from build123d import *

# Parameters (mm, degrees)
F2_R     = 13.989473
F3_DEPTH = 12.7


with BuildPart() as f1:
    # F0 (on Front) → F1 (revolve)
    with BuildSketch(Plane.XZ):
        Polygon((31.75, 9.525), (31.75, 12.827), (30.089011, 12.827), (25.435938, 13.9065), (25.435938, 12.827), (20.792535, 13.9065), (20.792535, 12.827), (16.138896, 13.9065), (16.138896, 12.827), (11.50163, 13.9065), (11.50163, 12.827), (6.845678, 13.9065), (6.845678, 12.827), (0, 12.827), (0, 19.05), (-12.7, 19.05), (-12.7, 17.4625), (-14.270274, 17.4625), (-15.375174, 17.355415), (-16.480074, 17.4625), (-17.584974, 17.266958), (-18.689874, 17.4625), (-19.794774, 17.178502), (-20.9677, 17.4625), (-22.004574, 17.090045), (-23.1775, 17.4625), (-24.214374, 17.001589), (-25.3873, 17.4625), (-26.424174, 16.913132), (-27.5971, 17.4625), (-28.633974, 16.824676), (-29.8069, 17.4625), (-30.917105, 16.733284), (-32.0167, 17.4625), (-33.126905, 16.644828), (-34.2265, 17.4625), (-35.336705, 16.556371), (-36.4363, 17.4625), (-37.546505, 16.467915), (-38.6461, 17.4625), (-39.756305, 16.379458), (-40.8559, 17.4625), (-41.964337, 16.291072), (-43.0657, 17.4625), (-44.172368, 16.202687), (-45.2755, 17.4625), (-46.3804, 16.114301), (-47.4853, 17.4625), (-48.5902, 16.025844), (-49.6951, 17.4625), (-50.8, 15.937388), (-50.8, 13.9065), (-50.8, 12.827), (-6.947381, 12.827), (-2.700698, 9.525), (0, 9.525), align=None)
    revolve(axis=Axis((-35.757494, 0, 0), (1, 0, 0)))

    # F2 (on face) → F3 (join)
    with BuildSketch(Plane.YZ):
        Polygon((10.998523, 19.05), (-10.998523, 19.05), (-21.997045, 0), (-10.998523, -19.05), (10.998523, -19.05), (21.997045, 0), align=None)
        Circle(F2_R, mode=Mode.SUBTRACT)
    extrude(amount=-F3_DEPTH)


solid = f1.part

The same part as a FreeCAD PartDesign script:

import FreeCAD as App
import Part
import Sketcher
Q = App.Units.Quantity


def add_polygon(sketch, points):
    """Adds a closed chain of lines whose ends are joined by coincident constraints."""
    first, n = sketch.GeometryCount, len(points)
    for a, b in zip(points, points[1:] + points[:1]):
        sketch.addGeometry(Part.LineSegment(App.Vector(*a, 0), App.Vector(*b, 0)), False)
    for i in range(n):
        sketch.addConstraint(Sketcher.Constraint("Coincident", first + i, 2, first + (i + 1) % n, 1))

doc = App.newDocument("Part")
body = doc.addObject("PartDesign::Body", "Body")

# Sketch on XZ plane
sketch1 = body.newObject("Sketcher::SketchObject", "Sketch")
sketch1.AttachmentSupport = (doc.getObject("XZ_Plane"), [""])
sketch1.MapMode = "FlatFace"
add_polygon(sketch1, [(31.8, 9.5), (31.8, 12.8), (30.1, 12.8), (25.4, 13.9), (25.4, 12.8), (20.8, 13.9), (20.8, 12.8), (16.1, 13.9), (16.1, 12.8), (11.5, 13.9), (11.5, 12.8), (6.8, 13.9), (6.8, 12.8), (0, 12.8), (0, 19.1), (-12.7, 19.1), (-12.7, 17.5), (-14.3, 17.5), (-15.4, 17.4), (-16.5, 17.5), (-17.6, 17.3), (-18.7, 17.5), (-19.8, 17.2), (-21, 17.5), (-22, 17.1), (-23.2, 17.5), (-24.2, 17), (-25.4, 17.5), (-26.4, 16.9), (-27.6, 17.5), (-28.6, 16.8), (-29.8, 17.5), (-30.9, 16.7), (-32, 17.5), (-33.1, 16.6), (-34.2, 17.5), (-35.3, 16.6), (-36.4, 17.5), (-37.5, 16.5), (-38.6, 17.5), (-39.8, 16.4), (-40.9, 17.5), (-42, 16.3), (-43.1, 17.5), (-44.2, 16.2), (-45.3, 17.5), (-46.4, 16.1), (-47.5, 17.5), (-48.6, 16), (-49.7, 17.5), (-50.8, 15.9), (-50.8, 12.8), (-6.9, 12.8), (-2.7, 9.5)])  # lines 0-53
sketch1.addConstraint(Sketcher.Constraint("Vertical", 0))
sketch1.addConstraint(Sketcher.Constraint("Horizontal", 1))
sketch1.addConstraint(Sketcher.Constraint("Vertical", 3))
sketch1.addConstraint(Sketcher.Constraint("Vertical", 5))
sketch1.addConstraint(Sketcher.Constraint("Vertical", 7))
sketch1.addConstraint(Sketcher.Constraint("Vertical", 9))
sketch1.addConstraint(Sketcher.Constraint("Vertical", 11))
sketch1.addConstraint(Sketcher.Constraint("Horizontal", 12))
sketch1.addConstraint(Sketcher.Constraint("Vertical", 13))
sketch1.addConstraint(Sketcher.Constraint("Horizontal", 14))
sketch1.addConstraint(Sketcher.Constraint("Vertical", 15))
sketch1.addConstraint(Sketcher.Constraint("Horizontal", 16))
sketch1.addConstraint(Sketcher.Constraint("Vertical", 50))
sketch1.addConstraint(Sketcher.Constraint("Horizontal", 51))
sketch1.addConstraint(Sketcher.Constraint("Horizontal", 53))
sketch1.addConstraint(Sketcher.Constraint("PointOnObject", 12, 2, -2))
sketch1.addConstraint(Sketcher.Constraint("Horizontal", 1, 2, 3, 2))
sketch1.addConstraint(Sketcher.Constraint("Horizontal", 2, 2, 4, 2))
sketch1.addConstraint(Sketcher.Constraint("Horizontal", 3, 2, 5, 2))
sketch1.addConstraint(Sketcher.Constraint("Horizontal", 4, 2, 6, 2))
sketch1.addConstraint(Sketcher.Constraint("Horizontal", 5, 2, 7, 2))
sketch1.addConstraint(Sketcher.Constraint("Horizontal", 6, 2, 8, 2))
sketch1.addConstraint(Sketcher.Constraint("Horizontal", 7, 2, 9, 2))
sketch1.addConstraint(Sketcher.Constraint("Horizontal", 8, 2, 10, 2))
sketch1.addConstraint(Sketcher.Constraint("Horizontal", 9, 2, 11, 2))
sketch1.addConstraint(Sketcher.Constraint("Horizontal", 16, 2, 18, 2))
sketch1.addConstraint(Sketcher.Constraint("Horizontal", 18, 2, 20, 2))
sketch1.addConstraint(Sketcher.Constraint("Horizontal", 20, 2, 22, 2))
sketch1.addConstraint(Sketcher.Constraint("Horizontal", 22, 2, 24, 2))
sketch1.addConstraint(Sketcher.Constraint("Horizontal", 24, 2, 26, 2))
sketch1.addConstraint(Sketcher.Constraint("Horizontal", 26, 2, 28, 2))
sketch1.addConstraint(Sketcher.Constraint("Horizontal", 28, 2, 30, 2))
sketch1.addConstraint(Sketcher.Constraint("Horizontal", 30, 2, 32, 2))
sketch1.addConstraint(Sketcher.Constraint("Horizontal", 32, 2, 34, 2))
sketch1.addConstraint(Sketcher.Constraint("Horizontal", 34, 2, 36, 2))
sketch1.addConstraint(Sketcher.Constraint("Horizontal", 36, 2, 38, 2))
sketch1.addConstraint(Sketcher.Constraint("Horizontal", 38, 2, 40, 2))
sketch1.addConstraint(Sketcher.Constraint("Horizontal", 40, 2, 42, 2))
sketch1.addConstraint(Sketcher.Constraint("Horizontal", 42, 2, 44, 2))
sketch1.addConstraint(Sketcher.Constraint("Horizontal", 44, 2, 46, 2))
sketch1.addConstraint(Sketcher.Constraint("Horizontal", 46, 2, 48, 2))
sketch1.addConstraint(Sketcher.Constraint("Horizontal", 12, 2, 50, 2))
sketch1.addConstraint(Sketcher.Constraint("Equal", 17, 18))
sketch1.addConstraint(Sketcher.Constraint("Equal", 19, 20))
sketch1.addConstraint(Sketcher.Constraint("Equal", 45, 46))
sketch1.addConstraint(Sketcher.Constraint("Equal", 47, 48))
sketch1.addConstraint(Sketcher.Constraint("DistanceX", 14, 2, 14, 1, Q("0.5 in")))
sketch1.addConstraint(Sketcher.Constraint("DistanceX", 49, 2, -1, 1, Q("2 in")))
sketch1.addConstraint(Sketcher.Constraint("DistanceY", 0, 1, 0, 2, Q("0.13 in")))
sketch1.addConstraint(Sketcher.Constraint("DistanceY", 13, 1, 13, 2, Q("0.245 in")))
sketch1.addConstraint(Sketcher.Constraint("DistanceY", 15, 2, 15, 1, Q("0.0625 in")))
sketch1.addConstraint(Sketcher.Constraint("DistanceX", -1, 1, 0, 2, Q("1.25 in")))
sketch1.addConstraint(Sketcher.Constraint("DistanceY", -1, 1, 13, 2, Q("0.75 in")))
sketch1.addConstraint(Sketcher.Constraint("DistanceY", 10, 2, 15, 2, Q("0.14 in")))
sketch1.addConstraint(Sketcher.Constraint("DistanceX", 45, 2, -1, 1, Q("1.826 in")))
sketch1.addConstraint(Sketcher.Constraint("DistanceX", 47, 2, -1, 1, Q("1.913 in")))
sketch1.addConstraint(Sketcher.Constraint("DistanceX", 18, 2, 16, 2, Q("0.087 in")))
sketch1.addConstraint(Sketcher.Constraint("DistanceX", 19, 2, 17, 2, Q("0.087 in")))
sketch1.addConstraint(Sketcher.Constraint("DistanceX", 21, 2, 19, 2, Q("0.087 in")))
sketch1.addConstraint(Sketcher.Constraint("DistanceX", 23, 2, 21, 2, Q("0.087 in")))
sketch1.addConstraint(Sketcher.Constraint("DistanceX", 24, 2, 22, 2, Q("0.087 in")))
sketch1.addConstraint(Sketcher.Constraint("DistanceX", 25, 2, 23, 2, Q("0.087 in")))
sketch1.addConstraint(Sketcher.Constraint("DistanceX", 26, 2, 24, 2, Q("0.087 in")))
sketch1.addConstraint(Sketcher.Constraint("DistanceX", 27, 2, 25, 2, Q("0.087 in")))
sketch1.addConstraint(Sketcher.Constraint("DistanceX", 28, 2, 26, 2, Q("0.087 in")))
sketch1.addConstraint(Sketcher.Constraint("DistanceX", 29, 2, 27, 2, Q("0.087 in")))
sketch1.addConstraint(Sketcher.Constraint("DistanceX", 30, 2, 28, 2, Q("0.087 in")))
sketch1.addConstraint(Sketcher.Constraint("DistanceX", 32, 2, 30, 2, Q("0.087 in")))
sketch1.addConstraint(Sketcher.Constraint("DistanceX", 33, 2, 31, 2, Q("0.087 in")))
sketch1.addConstraint(Sketcher.Constraint("DistanceX", 34, 2, 32, 2, Q("0.087 in")))
sketch1.addConstraint(Sketcher.Constraint("DistanceX", 35, 2, 33, 2, Q("0.087 in")))
sketch1.addConstraint(Sketcher.Constraint("DistanceX", 36, 2, 34, 2, Q("0.087 in")))
sketch1.addConstraint(Sketcher.Constraint("DistanceX", 37, 2, 35, 2, Q("0.087 in")))
sketch1.addConstraint(Sketcher.Constraint("DistanceX", 38, 2, 36, 2, Q("0.087 in")))
sketch1.addConstraint(Sketcher.Constraint("DistanceX", 39, 2, 37, 2, Q("0.087 in")))
sketch1.addConstraint(Sketcher.Constraint("DistanceX", 40, 2, 38, 2, Q("0.087 in")))
sketch1.addConstraint(Sketcher.Constraint("DistanceX", 42, 2, 40, 2, Q("0.087 in")))
sketch1.addConstraint(Sketcher.Constraint("DistanceX", 44, 2, 42, 2, Q("0.087 in")))
sketch1.addConstraint(Sketcher.Constraint("DistanceX", 46, 2, 44, 2, Q("0.087 in")))
sketch1.addConstraint(Sketcher.Constraint("DistanceX", 53, 1, 53, 2, Q("34.450698 mm")))
sketch1.addConstraint(Sketcher.Constraint("Distance", 25, Q("1.134701 mm")))
sketch1.addConstraint(Sketcher.Constraint("Distance", 40, Q("1.543402 mm")))
sketch1.addConstraint(Sketcher.Constraint("DistanceX", 1, 2, 1, 1, Q("1.660989 mm")))
sketch1.addConstraint(Sketcher.Constraint("DistanceX", 12, 2, 12, 1, Q("6.845678 mm")))
sketch1.addConstraint(Sketcher.Constraint("DistanceX", 51, 1, 51, 2, Q("43.852619 mm")))
sketch1.addConstraint(Sketcher.Constraint("DistanceY", 50, 2, 50, 1, Q("3.110388 mm")))
sketch1.addConstraint(Sketcher.Constraint("DistanceY", -1, 1, 45, 2, Q("16.114301 mm")))
sketch1.addConstraint(Sketcher.Constraint("Distance", 19, Q("1.12207 mm")))
sketch1.addConstraint(Sketcher.Constraint("Distance", 22, Q("1.206818 mm")))
sketch1.addConstraint(Sketcher.Constraint("Distance", 23, Q("1.10174 mm")))
sketch1.addConstraint(Sketcher.Constraint("Distance", 24, Q("1.230641 mm")))
sketch1.addConstraint(Sketcher.Constraint("Distance", 27, Q("1.173419 mm")))
sketch1.addConstraint(Sketcher.Constraint("Distance", 30, Q("1.335131 mm")))
sketch1.addConstraint(Sketcher.Constraint("Distance", 32, Q("1.319418 mm")))
sketch1.addConstraint(Sketcher.Constraint("Distance", 33, Q("1.378819 mm")))
sketch1.addConstraint(Sketcher.Constraint("Distance", 34, Q("1.370291 mm")))
sketch1.addConstraint(Sketcher.Constraint("Distance", 38, Q("1.482669 mm")))
sketch1.addConstraint(Sketcher.Constraint("Distance", 42, Q("1.607869 mm")))
sketch1.addConstraint(Sketcher.Constraint("DistanceX", -1, 1, 2, 2, Q("25.435938 mm")))
sketch1.addConstraint(Sketcher.Constraint("DistanceX", -1, 1, 8, 2, Q("11.50163 mm")))
sketch1.addConstraint(Sketcher.Constraint("DistanceY", -1, 1, 35, 2, Q("16.556371 mm")))
sketch1.addConstraint(Sketcher.Constraint("DistanceY", -1, 1, 41, 2, Q("16.291072 mm")))
sketch1.addConstraint(Sketcher.Constraint("DistanceX", 6, 2, 4, 2, Q("4.653639 mm")))
sketch1.addConstraint(Sketcher.Constraint("DistanceX", 43, 2, 41, 2, Q("2.208031 mm")))
sketch1.addConstraint(Sketcher.Constraint("DistanceY", 43, 2, 39, 2, Q("0.176771 mm")))
sketch1.addConstraint(Sketcher.Constraint("Distance", 4, Q("4.767233 mm")))
sketch1.addConstraint(Sketcher.Constraint("Distance", 17, Q("1.110077 mm")))
sketch1.addConstraint(Sketcher.Constraint("Distance", 47, Q("1.812397 mm")))
revolution = body.newObject("PartDesign::Revolution", "Revolution")
revolution.Profile = sketch1
revolution.ReferenceAxis = (sketch1, ["H_Axis"])
revolution.Angle = 360

# Sketch on YZ plane
sketch2 = body.newObject("Sketcher::SketchObject", "Sketch001")
sketch2.AttachmentSupport = (doc.getObject("YZ_Plane"), [""])
sketch2.MapMode = "FlatFace"
add_polygon(sketch2, [(11, 19), (-11, 19), (-22, 0), (-11, -19), (11, -19), (22, 0)])  # lines 0-5
sketch2.addGeometry(Part.Circle(App.Vector(0, 0, 0), App.Vector(0, 0, 1), 14), False)  # 6
sketch2.addConstraint(Sketcher.Constraint("Horizontal", 0))
sketch2.addConstraint(Sketcher.Constraint("Horizontal", 3))
sketch2.addConstraint(Sketcher.Constraint("Coincident", 6, 3, -1, 1))
sketch2.addConstraint(Sketcher.Constraint("Symmetric", 0, 2, 3, 2, -1, 1))
sketch2.addConstraint(Sketcher.Constraint("Symmetric", 1, 2, 4, 2, -1, 1))
sketch2.addConstraint(Sketcher.Constraint("PointOnObject", 1, 2, -1))
sketch2.addConstraint(Sketcher.Constraint("Parallel", 2, 5))
sketch2.addConstraint(Sketcher.Constraint("Vertical", 0, 2, 2, 2))
sketch2.addConstraint(Sketcher.Constraint("Angle", 1, Q("-119.999999 deg")))
sketch2.addConstraint(Sketcher.Constraint("DistanceY", 2, 2, 0, 2, Q("1.5 in")))
sketch2.addConstraint(Sketcher.Constraint("Diameter", 6, Q("27.978946 mm")))
sketch2.addConstraint(Sketcher.Constraint("DistanceX", 0, 2, 0, 1, Q("21.997046 mm")))
pad1 = body.newObject("PartDesign::Pad", "Pad")
pad1.Profile = sketch2
pad1.Length = Q("0.5 in")
pad1.Reversed = True

doc.recompute()
